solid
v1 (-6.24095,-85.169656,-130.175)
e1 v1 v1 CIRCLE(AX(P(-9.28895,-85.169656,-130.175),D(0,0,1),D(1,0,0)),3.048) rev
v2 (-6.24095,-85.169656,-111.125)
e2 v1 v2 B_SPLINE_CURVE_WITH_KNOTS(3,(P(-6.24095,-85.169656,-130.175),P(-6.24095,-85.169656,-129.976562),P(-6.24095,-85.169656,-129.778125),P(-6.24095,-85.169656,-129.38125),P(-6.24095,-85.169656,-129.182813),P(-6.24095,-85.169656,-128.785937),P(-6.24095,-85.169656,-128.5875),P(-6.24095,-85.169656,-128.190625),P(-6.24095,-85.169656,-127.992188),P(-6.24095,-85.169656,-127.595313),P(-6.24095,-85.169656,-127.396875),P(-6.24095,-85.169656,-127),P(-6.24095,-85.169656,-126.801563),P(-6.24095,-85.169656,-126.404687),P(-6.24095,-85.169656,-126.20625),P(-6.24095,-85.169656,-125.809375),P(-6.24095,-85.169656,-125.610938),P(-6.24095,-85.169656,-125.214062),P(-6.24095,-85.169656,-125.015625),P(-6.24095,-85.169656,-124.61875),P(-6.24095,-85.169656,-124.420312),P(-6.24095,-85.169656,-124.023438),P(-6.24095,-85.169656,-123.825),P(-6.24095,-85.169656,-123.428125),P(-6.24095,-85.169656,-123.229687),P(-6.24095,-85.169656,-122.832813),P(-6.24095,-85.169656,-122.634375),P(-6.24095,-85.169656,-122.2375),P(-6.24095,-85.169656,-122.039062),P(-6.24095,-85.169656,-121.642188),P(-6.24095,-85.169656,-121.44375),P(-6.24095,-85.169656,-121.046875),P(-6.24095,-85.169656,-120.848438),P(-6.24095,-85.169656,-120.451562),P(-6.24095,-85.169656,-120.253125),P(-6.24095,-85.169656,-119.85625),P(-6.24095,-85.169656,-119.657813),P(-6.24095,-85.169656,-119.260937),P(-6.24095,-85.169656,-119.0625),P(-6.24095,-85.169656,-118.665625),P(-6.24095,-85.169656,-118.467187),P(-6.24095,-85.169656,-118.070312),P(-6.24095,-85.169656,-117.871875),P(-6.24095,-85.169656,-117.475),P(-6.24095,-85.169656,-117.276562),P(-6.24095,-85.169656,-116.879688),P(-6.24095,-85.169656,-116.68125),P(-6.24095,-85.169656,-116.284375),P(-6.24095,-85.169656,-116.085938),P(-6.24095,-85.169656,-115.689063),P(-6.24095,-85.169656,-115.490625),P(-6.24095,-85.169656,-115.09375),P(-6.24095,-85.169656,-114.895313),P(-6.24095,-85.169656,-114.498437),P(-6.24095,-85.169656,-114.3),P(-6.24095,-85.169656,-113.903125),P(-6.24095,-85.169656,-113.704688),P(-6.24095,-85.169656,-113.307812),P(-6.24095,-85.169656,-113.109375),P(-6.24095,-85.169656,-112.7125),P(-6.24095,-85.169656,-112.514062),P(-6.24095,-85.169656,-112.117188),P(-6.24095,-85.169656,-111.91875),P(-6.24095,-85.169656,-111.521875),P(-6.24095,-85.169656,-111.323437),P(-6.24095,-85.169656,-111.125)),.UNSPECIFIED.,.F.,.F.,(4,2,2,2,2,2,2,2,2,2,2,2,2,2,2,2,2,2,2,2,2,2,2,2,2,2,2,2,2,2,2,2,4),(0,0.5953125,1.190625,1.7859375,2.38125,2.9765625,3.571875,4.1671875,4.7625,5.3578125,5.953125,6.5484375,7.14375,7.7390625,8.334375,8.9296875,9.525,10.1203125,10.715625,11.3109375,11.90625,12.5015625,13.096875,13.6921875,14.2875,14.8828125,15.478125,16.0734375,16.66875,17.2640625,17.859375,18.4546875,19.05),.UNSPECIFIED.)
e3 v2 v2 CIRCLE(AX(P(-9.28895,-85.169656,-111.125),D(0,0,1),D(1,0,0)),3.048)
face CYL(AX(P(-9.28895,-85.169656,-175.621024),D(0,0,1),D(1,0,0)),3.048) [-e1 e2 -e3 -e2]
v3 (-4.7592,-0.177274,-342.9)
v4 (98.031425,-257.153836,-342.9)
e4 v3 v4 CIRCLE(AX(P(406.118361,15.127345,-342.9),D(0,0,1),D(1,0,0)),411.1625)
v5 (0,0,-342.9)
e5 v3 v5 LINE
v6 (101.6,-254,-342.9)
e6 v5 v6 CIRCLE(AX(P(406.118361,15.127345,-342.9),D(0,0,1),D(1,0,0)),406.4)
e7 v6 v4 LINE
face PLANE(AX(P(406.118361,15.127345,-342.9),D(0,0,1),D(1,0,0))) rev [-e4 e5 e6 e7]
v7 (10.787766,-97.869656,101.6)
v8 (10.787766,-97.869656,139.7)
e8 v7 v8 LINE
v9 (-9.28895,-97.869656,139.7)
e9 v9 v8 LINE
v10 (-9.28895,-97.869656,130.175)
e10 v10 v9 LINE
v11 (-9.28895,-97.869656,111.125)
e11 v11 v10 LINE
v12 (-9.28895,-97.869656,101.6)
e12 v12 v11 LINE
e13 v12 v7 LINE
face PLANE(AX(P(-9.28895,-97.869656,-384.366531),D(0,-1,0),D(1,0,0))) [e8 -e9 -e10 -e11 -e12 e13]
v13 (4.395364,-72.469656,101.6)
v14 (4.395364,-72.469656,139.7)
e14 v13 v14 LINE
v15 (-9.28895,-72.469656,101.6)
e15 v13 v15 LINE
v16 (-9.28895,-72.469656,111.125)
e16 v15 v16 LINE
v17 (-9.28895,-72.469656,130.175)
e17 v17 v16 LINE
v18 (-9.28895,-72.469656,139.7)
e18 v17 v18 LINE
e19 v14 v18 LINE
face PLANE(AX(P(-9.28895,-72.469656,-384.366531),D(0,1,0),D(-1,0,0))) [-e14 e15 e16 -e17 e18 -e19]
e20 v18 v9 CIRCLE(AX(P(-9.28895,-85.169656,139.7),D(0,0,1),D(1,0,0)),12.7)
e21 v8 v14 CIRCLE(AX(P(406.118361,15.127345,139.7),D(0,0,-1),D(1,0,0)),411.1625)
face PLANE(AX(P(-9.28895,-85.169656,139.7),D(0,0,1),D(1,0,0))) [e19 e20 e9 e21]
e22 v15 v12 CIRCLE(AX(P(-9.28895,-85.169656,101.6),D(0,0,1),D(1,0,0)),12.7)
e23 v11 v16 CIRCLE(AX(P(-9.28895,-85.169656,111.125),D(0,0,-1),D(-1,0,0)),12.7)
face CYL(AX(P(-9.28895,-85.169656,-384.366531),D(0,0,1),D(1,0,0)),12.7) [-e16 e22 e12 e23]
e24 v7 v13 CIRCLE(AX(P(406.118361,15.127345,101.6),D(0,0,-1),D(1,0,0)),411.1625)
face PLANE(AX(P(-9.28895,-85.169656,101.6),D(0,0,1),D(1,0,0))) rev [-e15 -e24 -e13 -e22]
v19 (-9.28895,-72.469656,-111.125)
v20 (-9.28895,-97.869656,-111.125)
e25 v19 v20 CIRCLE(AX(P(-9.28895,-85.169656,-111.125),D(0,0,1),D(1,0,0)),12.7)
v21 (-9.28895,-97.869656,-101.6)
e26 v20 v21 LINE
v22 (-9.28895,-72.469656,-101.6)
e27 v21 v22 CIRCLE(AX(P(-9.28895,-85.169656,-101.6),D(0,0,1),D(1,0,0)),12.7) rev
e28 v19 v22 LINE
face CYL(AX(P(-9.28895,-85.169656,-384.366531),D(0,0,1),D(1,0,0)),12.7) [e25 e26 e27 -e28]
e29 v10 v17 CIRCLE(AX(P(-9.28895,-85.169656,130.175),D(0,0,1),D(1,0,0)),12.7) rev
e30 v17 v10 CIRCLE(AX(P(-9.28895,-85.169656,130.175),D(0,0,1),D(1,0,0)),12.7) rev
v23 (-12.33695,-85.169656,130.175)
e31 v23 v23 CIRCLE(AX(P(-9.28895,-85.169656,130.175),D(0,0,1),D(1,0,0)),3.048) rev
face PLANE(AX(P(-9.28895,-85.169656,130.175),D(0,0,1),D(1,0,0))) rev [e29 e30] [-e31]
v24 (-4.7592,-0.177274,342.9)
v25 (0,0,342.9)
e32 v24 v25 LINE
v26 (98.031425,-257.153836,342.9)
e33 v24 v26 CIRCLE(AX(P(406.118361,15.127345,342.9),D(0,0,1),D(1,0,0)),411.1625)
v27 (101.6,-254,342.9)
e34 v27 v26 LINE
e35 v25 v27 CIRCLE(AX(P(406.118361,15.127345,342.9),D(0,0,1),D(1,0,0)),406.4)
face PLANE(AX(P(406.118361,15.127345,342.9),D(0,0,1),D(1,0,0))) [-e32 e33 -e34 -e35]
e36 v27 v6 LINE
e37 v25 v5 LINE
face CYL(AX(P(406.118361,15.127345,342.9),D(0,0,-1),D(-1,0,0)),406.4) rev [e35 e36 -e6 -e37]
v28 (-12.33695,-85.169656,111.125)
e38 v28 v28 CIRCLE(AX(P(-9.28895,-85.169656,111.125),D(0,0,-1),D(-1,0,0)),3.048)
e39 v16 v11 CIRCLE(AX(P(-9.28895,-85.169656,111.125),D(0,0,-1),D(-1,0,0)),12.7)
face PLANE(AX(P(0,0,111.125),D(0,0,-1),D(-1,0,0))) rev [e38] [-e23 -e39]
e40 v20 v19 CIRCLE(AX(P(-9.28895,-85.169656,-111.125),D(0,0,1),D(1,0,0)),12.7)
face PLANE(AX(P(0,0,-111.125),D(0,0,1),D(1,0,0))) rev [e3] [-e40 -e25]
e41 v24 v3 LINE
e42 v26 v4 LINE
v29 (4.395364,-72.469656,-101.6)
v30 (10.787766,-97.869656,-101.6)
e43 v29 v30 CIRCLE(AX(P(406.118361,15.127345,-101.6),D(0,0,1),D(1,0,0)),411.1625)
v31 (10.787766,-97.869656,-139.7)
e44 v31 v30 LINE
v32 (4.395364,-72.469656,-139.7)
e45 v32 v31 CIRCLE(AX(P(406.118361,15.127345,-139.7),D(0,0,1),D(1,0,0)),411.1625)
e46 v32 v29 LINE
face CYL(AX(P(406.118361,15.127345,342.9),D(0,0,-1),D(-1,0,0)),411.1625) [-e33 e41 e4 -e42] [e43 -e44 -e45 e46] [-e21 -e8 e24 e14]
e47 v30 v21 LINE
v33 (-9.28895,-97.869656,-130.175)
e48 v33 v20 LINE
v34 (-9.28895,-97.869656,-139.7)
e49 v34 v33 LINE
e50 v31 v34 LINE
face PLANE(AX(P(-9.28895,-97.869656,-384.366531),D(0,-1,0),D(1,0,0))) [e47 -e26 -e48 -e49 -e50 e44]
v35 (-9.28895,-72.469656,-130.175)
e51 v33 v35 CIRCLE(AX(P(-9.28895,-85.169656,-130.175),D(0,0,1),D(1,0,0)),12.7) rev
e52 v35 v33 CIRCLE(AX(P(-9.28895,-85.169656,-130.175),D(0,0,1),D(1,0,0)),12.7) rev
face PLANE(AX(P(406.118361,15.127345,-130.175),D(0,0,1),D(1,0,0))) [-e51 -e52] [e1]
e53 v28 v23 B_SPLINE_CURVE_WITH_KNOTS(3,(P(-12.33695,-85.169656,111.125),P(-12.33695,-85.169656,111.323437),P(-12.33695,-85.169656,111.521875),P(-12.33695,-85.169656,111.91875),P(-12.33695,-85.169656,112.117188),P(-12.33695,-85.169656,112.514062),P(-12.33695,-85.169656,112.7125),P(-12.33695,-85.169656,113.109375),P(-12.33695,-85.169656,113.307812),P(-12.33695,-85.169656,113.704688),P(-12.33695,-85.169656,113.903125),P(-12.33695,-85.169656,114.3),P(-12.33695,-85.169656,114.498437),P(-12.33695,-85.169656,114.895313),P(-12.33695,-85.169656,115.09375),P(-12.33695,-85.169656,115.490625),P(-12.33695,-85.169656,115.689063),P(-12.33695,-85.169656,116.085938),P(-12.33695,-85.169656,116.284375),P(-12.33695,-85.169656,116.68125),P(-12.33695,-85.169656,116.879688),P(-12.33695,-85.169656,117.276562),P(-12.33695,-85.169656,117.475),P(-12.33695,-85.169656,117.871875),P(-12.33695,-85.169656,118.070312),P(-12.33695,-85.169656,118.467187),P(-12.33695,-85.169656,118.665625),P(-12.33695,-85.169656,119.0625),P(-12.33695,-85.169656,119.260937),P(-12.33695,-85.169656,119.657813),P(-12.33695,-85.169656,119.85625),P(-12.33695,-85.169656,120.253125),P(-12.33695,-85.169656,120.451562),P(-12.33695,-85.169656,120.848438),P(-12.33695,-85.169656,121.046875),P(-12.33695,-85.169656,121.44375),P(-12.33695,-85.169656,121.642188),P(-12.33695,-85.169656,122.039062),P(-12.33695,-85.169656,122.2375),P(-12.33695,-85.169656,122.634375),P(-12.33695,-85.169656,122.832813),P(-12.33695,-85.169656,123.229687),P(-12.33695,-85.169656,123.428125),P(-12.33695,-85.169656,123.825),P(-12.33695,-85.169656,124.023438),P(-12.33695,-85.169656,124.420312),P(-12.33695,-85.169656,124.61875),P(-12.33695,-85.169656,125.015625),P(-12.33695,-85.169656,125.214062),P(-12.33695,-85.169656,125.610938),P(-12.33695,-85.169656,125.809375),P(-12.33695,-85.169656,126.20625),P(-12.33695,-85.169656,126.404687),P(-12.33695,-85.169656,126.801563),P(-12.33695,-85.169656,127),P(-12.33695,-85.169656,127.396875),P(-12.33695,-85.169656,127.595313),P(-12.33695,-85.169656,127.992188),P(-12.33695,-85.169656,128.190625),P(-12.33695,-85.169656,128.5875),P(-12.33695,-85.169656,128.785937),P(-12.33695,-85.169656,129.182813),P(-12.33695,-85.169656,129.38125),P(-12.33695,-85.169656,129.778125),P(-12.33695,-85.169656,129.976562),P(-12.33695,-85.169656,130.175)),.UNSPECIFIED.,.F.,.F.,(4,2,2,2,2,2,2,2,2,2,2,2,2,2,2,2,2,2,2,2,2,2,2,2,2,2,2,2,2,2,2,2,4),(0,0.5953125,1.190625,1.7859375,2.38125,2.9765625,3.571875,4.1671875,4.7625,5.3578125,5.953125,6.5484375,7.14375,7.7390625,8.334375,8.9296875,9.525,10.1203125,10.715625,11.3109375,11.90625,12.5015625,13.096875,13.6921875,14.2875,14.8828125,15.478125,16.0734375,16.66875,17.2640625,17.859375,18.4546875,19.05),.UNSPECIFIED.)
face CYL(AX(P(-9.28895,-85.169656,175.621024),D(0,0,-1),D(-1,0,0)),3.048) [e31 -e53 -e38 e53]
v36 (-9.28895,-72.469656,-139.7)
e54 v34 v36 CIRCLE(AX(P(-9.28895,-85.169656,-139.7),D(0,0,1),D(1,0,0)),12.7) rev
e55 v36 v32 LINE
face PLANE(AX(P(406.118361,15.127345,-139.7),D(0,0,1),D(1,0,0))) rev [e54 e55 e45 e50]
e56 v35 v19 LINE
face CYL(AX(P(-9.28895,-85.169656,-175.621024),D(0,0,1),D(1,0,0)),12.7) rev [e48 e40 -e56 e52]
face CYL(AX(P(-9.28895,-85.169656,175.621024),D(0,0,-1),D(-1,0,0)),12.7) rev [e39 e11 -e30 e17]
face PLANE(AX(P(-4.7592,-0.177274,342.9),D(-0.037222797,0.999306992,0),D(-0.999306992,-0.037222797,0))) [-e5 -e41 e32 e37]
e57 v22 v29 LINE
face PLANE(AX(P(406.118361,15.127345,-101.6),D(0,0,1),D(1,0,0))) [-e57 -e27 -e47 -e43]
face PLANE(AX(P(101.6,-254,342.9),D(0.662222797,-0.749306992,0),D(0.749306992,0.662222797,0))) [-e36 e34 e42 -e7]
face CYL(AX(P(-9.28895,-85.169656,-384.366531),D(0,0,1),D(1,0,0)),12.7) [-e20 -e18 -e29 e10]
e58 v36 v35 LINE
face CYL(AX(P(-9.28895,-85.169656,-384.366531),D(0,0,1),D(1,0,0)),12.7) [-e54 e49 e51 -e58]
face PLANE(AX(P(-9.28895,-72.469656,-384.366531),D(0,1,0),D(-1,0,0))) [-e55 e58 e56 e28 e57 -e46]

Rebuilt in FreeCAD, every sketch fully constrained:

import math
import FreeCAD as App
import Part
import Sketcher
Q = App.Units.Quantity

doc = App.newDocument("Part")
body = doc.addObject("PartDesign::Body", "Body")

# Sketch on XY plane
sketch1 = body.newObject("Sketcher::SketchObject", "Sketch")
sketch1.AttachmentSupport = (doc.getObject("XY_Plane"), [""])
sketch1.MapMode = "FlatFace"
sketch1.addGeometry(Part.ArcOfCircle(Part.Circle(App.Vector(406.118361, 15.127345, 0), App.Vector(0, 0, 1), 406.4), math.radians(-177.866798), math.radians(-138.530383)), False)
sketch1.addGeometry(Part.LineSegment(App.Vector(0, 0, 0), App.Vector(-4.7592, -0.177274, 0)), False)
sketch1.addGeometry(Part.ArcOfCircle(Part.Circle(App.Vector(406.118361, 15.127345, 0), App.Vector(0, 0, 1), 411.1625), math.radians(-177.866798), math.radians(-138.530383)), False)
sketch1.addGeometry(Part.LineSegment(App.Vector(98.031425, -257.153836, 0), App.Vector(101.6, -254, 0)), False)
sketch1.addConstraint(Sketcher.Constraint("Coincident", 0, 1, 1, 1))
sketch1.addConstraint(Sketcher.Constraint("Coincident", 1, 2, 2, 1))
sketch1.addConstraint(Sketcher.Constraint("Coincident", 2, 2, 3, 1))
sketch1.addConstraint(Sketcher.Constraint("Coincident", 3, 2, 0, 2))
sketch1.addConstraint(Sketcher.Constraint("Coincident", 0, 1, -1, 1))
sketch1.addConstraint(Sketcher.Constraint("Coincident", 2, 3, 0, 3))
sketch1.addConstraint(Sketcher.Constraint("Radius", 0, Q("16 in")))
sketch1.addConstraint(Sketcher.Constraint("DistanceX", -1, 1, 3, 2, Q("4 in")))
sketch1.addConstraint(Sketcher.Constraint("DistanceY", 3, 2, -1, 1, Q("10 in")))
sketch1.addConstraint(Sketcher.Constraint("Radius", 2, Q("16.1875 in")))
sketch1.addConstraint(Sketcher.Constraint("DistanceX", 1, 2, 2, 2, Q("4.046875 in")))
sketch1.addConstraint(Sketcher.Constraint("DistanceX", 1, 2, -1, 1, Q("4.7592 mm")))
pad1 = body.newObject("PartDesign::Pad", "Pad")
pad1.Profile = sketch1
pad1.Length = Q("27 in")
pad1.Midplane = True

# Sketch on XY plane
sketch2 = body.newObject("Sketcher::SketchObject", "Sketch001")
sketch2.AttachmentSupport = (doc.getObject("XY_Plane"), [""])
sketch2.MapMode = "FlatFace"
sketch2.AttachmentOffset = App.Placement(App.Vector(0, 0, 5.5 * 25.4), App.Rotation())
sketch2.addGeometry(Part.LineSegment(App.Vector(4.395364, -72.469656, 0), App.Vector(-9.28895, -72.469656, 0)), False)
sketch2.addGeometry(Part.ArcOfCircle(Part.Circle(App.Vector(-9.28895, -85.169656, 0), App.Vector(0, 0, 1), 12.7), math.radians(90), math.radians(270)), False)
sketch2.addGeometry(Part.LineSegment(App.Vector(-9.28895, -97.869656, 0), App.Vector(10.787766, -97.869656, 0)), False)
sketch2.addGeometry(Part.ArcOfCircle(Part.Circle(App.Vector(406.118361, 15.127344, 0), App.Vector(0, 0, 1), 411.162499), math.radians(-167.699017), math.radians(-164.048521)), False)
sketch2.addConstraint(Sketcher.Constraint("Tangent", 0, 2, 1, 1))
sketch2.addConstraint(Sketcher.Constraint("Tangent", 1, 2, 2, 1))
sketch2.addConstraint(Sketcher.Constraint("Coincident", 2, 2, 3, 2))
sketch2.addConstraint(Sketcher.Constraint("Coincident", 3, 1, 0, 1))
sketch2.addConstraint(Sketcher.Constraint("Horizontal", 0))
sketch2.addConstraint(Sketcher.Constraint("Horizontal", 2))
sketch2.addConstraint(Sketcher.Constraint("Radius", 1, Q("0.5 in")))
sketch2.addConstraint(Sketcher.Constraint("Radius", 3, Q("16.1875 in")))
sketch2.addConstraint(Sketcher.Constraint("DistanceY", 1, 3, 3, 3, Q("100.297001 mm")))
sketch2.addConstraint(Sketcher.Constraint("DistanceX", 0, 2, 0, 1, Q("13.684314 mm")))
sketch2.addConstraint(Sketcher.Constraint("DistanceX", 1, 3, -1, 1, Q("9.28895 mm")))
sketch2.addConstraint(Sketcher.Constraint("DistanceY", 1, 3, -1, 1, Q("85.169656 mm")))
pad2 = body.newObject("PartDesign::Pad", "Pad001")
pad2.Profile = sketch2
pad2.Length = Q("11 in")
pad2.Reversed = True

# Sketch on XY plane
sketch3 = body.newObject("Sketcher::SketchObject", "Sketch002")
sketch3.AttachmentSupport = (doc.getObject("XY_Plane"), [""])
sketch3.MapMode = "FlatFace"
sketch3.AttachmentOffset = App.Placement(App.Vector(0, 0, 4 * 25.4), App.Rotation())
sketch3.addGeometry(Part.LineSegment(App.Vector(-9.28895, -97.869656, 0), App.Vector(10.787766, -97.869656, 0)), False)
sketch3.addGeometry(Part.ArcOfCircle(Part.Circle(App.Vector(406.118361, 15.127344, 0), App.Vector(0, 0, 1), 411.162499), math.radians(-167.699017), math.radians(-164.048521)), False)
sketch3.addGeometry(Part.LineSegment(App.Vector(4.395364, -72.469656, 0), App.Vector(-9.28895, -72.469656, 0)), False)
sketch3.addGeometry(Part.ArcOfCircle(Part.Circle(App.Vector(-9.28895, -85.169656, 0), App.Vector(0, 0, 1), 12.7), math.radians(90), math.radians(270)), False)
sketch3.addConstraint(Sketcher.Constraint("Coincident", 0, 2, 1, 2))
sketch3.addConstraint(Sketcher.Constraint("Coincident", 1, 1, 2, 1))
sketch3.addConstraint(Sketcher.Constraint("Tangent", 2, 2, 3, 1))
sketch3.addConstraint(Sketcher.Constraint("Tangent", 3, 2, 0, 1))
sketch3.addConstraint(Sketcher.Constraint("Horizontal", 0))
sketch3.addConstraint(Sketcher.Constraint("Horizontal", 2))
sketch3.addConstraint(Sketcher.Constraint("Radius", 3, Q("0.5 in")))
sketch3.addConstraint(Sketcher.Constraint("Radius", 1, Q("16.1875 in")))
sketch3.addConstraint(Sketcher.Constraint("DistanceY", 3, 3, 1, 3, Q("100.297001 mm")))
sketch3.addConstraint(Sketcher.Constraint("DistanceX", 0, 1, 0, 2, Q("20.076717 mm")))
sketch3.addConstraint(Sketcher.Constraint("DistanceX", -1, 1, 1, 3, Q("406.118361 mm")))
sketch3.addConstraint(Sketcher.Constraint("DistanceY", -1, 1, 1, 3, Q("15.127344 mm")))
pocket1 = body.newObject("PartDesign::Pocket", "Pocket")
pocket1.Profile = sketch3
pocket1.Length = Q("8 in")

# Sketch on XY plane
sketch4 = body.newObject("Sketcher::SketchObject", "Sketch003")
sketch4.AttachmentSupport = (doc.getObject("XY_Plane"), [""])
sketch4.MapMode = "FlatFace"
sketch4.AttachmentOffset = App.Placement(App.Vector(0, 0, -4.375 * 25.4), App.Rotation())
sketch4.addGeometry(Part.ArcOfCircle(Part.Circle(App.Vector(-9.28895, -85.169656, 0), App.Vector(0, 0, 1), 12.7), math.radians(-90), math.radians(0)), False)
sketch4.addGeometry(Part.ArcOfCircle(Part.Circle(App.Vector(-9.28895, -85.169656, 0), App.Vector(0, 0, 1), 12.7), math.radians(0), math.radians(90)), False)
sketch4.addGeometry(Part.ArcOfCircle(Part.Circle(App.Vector(-9.28895, -85.169656, 0), App.Vector(0, 0, 1), 12.7), math.radians(90), math.radians(270)), False)
sketch4.addGeometry(Part.Circle(App.Vector(-9.28895, -85.169656, 0), App.Vector(0, 0, 1), 3.048), False)
sketch4.addConstraint(Sketcher.Constraint("Tangent", 0, 2, 1, 1))
sketch4.addConstraint(Sketcher.Constraint("Tangent", 1, 2, 2, 1))
sketch4.addConstraint(Sketcher.Constraint("Tangent", 2, 2, 0, 1))
sketch4.addConstraint(Sketcher.Constraint("Coincident", 3, 3, 0, 3))
sketch4.addConstraint(Sketcher.Constraint("Horizontal", 3, 3, 0, 2))
sketch4.addConstraint(Sketcher.Constraint("Vertical", 3, 3, 1, 2))
sketch4.addConstraint(Sketcher.Constraint("Vertical", 1, 2, 2, 2))
sketch4.addConstraint(Sketcher.Constraint("Radius", 0, Q("0.5 in")))
sketch4.addConstraint(Sketcher.Constraint("Diameter", 3, Q("0.24 in")))
sketch4.addConstraint(Sketcher.Constraint("DistanceX", 0, 3, -1, 1, Q("9.28895 mm")))
sketch4.addConstraint(Sketcher.Constraint("DistanceY", 0, 3, -1, 1, Q("85.169656 mm")))
pocket2 = body.newObject("PartDesign::Pocket", "Pocket001")
pocket2.Profile = sketch4
pocket2.Length = Q("0.75 in")

# Sketch on XY plane
sketch5 = body.newObject("Sketcher::SketchObject", "Sketch004")
sketch5.AttachmentSupport = (doc.getObject("XY_Plane"), [""])
sketch5.MapMode = "FlatFace"
sketch5.AttachmentOffset = App.Placement(App.Vector(0, 0, 5.125 * 25.4), App.Rotation())
sketch5.addGeometry(Part.ArcOfCircle(Part.Circle(App.Vector(-9.28895, -85.169656, 0), App.Vector(0, 0, 1), 12.7), math.radians(180), math.radians(270)), False)
sketch5.addGeometry(Part.ArcOfCircle(Part.Circle(App.Vector(-9.28895, -85.169656, 0), App.Vector(0, 0, 1), 12.7), math.radians(90), math.radians(180)), False)
sketch5.addGeometry(Part.ArcOfCircle(Part.Circle(App.Vector(-9.28895, -85.169656, 0), App.Vector(0, 0, 1), 12.7), math.radians(-90), math.radians(90)), False)
sketch5.addGeometry(Part.Circle(App.Vector(-9.28895, -85.169656, 0), App.Vector(0, 0, 1), 3.048), False)
sketch5.addConstraint(Sketcher.Constraint("Tangent", 0, 1, 1, 2))
sketch5.addConstraint(Sketcher.Constraint("Tangent", 1, 1, 2, 2))
sketch5.addConstraint(Sketcher.Constraint("Tangent", 2, 1, 0, 2))
sketch5.addConstraint(Sketcher.Constraint("Coincident", 3, 3, 0, 3))
sketch5.addConstraint(Sketcher.Constraint("Horizontal", 3, 3, 0, 1))
sketch5.addConstraint(Sketcher.Constraint("Vertical", 3, 3, 1, 1))
sketch5.addConstraint(Sketcher.Constraint("Vertical", 1, 1, 2, 1))
sketch5.addConstraint(Sketcher.Constraint("Radius", 0, Q("0.5 in")))
sketch5.addConstraint(Sketcher.Constraint("Diameter", 3, Q("0.24 in")))
sketch5.addConstraint(Sketcher.Constraint("DistanceX", 0, 3, -1, 1, Q("9.28895 mm")))
sketch5.addConstraint(Sketcher.Constraint("DistanceY", 0, 3, -1, 1, Q("85.169656 mm")))
pocket3 = body.newObject("PartDesign::Pocket", "Pocket002")
pocket3.Profile = sketch5
pocket3.Length = Q("0.75 in")

doc.recompute()
